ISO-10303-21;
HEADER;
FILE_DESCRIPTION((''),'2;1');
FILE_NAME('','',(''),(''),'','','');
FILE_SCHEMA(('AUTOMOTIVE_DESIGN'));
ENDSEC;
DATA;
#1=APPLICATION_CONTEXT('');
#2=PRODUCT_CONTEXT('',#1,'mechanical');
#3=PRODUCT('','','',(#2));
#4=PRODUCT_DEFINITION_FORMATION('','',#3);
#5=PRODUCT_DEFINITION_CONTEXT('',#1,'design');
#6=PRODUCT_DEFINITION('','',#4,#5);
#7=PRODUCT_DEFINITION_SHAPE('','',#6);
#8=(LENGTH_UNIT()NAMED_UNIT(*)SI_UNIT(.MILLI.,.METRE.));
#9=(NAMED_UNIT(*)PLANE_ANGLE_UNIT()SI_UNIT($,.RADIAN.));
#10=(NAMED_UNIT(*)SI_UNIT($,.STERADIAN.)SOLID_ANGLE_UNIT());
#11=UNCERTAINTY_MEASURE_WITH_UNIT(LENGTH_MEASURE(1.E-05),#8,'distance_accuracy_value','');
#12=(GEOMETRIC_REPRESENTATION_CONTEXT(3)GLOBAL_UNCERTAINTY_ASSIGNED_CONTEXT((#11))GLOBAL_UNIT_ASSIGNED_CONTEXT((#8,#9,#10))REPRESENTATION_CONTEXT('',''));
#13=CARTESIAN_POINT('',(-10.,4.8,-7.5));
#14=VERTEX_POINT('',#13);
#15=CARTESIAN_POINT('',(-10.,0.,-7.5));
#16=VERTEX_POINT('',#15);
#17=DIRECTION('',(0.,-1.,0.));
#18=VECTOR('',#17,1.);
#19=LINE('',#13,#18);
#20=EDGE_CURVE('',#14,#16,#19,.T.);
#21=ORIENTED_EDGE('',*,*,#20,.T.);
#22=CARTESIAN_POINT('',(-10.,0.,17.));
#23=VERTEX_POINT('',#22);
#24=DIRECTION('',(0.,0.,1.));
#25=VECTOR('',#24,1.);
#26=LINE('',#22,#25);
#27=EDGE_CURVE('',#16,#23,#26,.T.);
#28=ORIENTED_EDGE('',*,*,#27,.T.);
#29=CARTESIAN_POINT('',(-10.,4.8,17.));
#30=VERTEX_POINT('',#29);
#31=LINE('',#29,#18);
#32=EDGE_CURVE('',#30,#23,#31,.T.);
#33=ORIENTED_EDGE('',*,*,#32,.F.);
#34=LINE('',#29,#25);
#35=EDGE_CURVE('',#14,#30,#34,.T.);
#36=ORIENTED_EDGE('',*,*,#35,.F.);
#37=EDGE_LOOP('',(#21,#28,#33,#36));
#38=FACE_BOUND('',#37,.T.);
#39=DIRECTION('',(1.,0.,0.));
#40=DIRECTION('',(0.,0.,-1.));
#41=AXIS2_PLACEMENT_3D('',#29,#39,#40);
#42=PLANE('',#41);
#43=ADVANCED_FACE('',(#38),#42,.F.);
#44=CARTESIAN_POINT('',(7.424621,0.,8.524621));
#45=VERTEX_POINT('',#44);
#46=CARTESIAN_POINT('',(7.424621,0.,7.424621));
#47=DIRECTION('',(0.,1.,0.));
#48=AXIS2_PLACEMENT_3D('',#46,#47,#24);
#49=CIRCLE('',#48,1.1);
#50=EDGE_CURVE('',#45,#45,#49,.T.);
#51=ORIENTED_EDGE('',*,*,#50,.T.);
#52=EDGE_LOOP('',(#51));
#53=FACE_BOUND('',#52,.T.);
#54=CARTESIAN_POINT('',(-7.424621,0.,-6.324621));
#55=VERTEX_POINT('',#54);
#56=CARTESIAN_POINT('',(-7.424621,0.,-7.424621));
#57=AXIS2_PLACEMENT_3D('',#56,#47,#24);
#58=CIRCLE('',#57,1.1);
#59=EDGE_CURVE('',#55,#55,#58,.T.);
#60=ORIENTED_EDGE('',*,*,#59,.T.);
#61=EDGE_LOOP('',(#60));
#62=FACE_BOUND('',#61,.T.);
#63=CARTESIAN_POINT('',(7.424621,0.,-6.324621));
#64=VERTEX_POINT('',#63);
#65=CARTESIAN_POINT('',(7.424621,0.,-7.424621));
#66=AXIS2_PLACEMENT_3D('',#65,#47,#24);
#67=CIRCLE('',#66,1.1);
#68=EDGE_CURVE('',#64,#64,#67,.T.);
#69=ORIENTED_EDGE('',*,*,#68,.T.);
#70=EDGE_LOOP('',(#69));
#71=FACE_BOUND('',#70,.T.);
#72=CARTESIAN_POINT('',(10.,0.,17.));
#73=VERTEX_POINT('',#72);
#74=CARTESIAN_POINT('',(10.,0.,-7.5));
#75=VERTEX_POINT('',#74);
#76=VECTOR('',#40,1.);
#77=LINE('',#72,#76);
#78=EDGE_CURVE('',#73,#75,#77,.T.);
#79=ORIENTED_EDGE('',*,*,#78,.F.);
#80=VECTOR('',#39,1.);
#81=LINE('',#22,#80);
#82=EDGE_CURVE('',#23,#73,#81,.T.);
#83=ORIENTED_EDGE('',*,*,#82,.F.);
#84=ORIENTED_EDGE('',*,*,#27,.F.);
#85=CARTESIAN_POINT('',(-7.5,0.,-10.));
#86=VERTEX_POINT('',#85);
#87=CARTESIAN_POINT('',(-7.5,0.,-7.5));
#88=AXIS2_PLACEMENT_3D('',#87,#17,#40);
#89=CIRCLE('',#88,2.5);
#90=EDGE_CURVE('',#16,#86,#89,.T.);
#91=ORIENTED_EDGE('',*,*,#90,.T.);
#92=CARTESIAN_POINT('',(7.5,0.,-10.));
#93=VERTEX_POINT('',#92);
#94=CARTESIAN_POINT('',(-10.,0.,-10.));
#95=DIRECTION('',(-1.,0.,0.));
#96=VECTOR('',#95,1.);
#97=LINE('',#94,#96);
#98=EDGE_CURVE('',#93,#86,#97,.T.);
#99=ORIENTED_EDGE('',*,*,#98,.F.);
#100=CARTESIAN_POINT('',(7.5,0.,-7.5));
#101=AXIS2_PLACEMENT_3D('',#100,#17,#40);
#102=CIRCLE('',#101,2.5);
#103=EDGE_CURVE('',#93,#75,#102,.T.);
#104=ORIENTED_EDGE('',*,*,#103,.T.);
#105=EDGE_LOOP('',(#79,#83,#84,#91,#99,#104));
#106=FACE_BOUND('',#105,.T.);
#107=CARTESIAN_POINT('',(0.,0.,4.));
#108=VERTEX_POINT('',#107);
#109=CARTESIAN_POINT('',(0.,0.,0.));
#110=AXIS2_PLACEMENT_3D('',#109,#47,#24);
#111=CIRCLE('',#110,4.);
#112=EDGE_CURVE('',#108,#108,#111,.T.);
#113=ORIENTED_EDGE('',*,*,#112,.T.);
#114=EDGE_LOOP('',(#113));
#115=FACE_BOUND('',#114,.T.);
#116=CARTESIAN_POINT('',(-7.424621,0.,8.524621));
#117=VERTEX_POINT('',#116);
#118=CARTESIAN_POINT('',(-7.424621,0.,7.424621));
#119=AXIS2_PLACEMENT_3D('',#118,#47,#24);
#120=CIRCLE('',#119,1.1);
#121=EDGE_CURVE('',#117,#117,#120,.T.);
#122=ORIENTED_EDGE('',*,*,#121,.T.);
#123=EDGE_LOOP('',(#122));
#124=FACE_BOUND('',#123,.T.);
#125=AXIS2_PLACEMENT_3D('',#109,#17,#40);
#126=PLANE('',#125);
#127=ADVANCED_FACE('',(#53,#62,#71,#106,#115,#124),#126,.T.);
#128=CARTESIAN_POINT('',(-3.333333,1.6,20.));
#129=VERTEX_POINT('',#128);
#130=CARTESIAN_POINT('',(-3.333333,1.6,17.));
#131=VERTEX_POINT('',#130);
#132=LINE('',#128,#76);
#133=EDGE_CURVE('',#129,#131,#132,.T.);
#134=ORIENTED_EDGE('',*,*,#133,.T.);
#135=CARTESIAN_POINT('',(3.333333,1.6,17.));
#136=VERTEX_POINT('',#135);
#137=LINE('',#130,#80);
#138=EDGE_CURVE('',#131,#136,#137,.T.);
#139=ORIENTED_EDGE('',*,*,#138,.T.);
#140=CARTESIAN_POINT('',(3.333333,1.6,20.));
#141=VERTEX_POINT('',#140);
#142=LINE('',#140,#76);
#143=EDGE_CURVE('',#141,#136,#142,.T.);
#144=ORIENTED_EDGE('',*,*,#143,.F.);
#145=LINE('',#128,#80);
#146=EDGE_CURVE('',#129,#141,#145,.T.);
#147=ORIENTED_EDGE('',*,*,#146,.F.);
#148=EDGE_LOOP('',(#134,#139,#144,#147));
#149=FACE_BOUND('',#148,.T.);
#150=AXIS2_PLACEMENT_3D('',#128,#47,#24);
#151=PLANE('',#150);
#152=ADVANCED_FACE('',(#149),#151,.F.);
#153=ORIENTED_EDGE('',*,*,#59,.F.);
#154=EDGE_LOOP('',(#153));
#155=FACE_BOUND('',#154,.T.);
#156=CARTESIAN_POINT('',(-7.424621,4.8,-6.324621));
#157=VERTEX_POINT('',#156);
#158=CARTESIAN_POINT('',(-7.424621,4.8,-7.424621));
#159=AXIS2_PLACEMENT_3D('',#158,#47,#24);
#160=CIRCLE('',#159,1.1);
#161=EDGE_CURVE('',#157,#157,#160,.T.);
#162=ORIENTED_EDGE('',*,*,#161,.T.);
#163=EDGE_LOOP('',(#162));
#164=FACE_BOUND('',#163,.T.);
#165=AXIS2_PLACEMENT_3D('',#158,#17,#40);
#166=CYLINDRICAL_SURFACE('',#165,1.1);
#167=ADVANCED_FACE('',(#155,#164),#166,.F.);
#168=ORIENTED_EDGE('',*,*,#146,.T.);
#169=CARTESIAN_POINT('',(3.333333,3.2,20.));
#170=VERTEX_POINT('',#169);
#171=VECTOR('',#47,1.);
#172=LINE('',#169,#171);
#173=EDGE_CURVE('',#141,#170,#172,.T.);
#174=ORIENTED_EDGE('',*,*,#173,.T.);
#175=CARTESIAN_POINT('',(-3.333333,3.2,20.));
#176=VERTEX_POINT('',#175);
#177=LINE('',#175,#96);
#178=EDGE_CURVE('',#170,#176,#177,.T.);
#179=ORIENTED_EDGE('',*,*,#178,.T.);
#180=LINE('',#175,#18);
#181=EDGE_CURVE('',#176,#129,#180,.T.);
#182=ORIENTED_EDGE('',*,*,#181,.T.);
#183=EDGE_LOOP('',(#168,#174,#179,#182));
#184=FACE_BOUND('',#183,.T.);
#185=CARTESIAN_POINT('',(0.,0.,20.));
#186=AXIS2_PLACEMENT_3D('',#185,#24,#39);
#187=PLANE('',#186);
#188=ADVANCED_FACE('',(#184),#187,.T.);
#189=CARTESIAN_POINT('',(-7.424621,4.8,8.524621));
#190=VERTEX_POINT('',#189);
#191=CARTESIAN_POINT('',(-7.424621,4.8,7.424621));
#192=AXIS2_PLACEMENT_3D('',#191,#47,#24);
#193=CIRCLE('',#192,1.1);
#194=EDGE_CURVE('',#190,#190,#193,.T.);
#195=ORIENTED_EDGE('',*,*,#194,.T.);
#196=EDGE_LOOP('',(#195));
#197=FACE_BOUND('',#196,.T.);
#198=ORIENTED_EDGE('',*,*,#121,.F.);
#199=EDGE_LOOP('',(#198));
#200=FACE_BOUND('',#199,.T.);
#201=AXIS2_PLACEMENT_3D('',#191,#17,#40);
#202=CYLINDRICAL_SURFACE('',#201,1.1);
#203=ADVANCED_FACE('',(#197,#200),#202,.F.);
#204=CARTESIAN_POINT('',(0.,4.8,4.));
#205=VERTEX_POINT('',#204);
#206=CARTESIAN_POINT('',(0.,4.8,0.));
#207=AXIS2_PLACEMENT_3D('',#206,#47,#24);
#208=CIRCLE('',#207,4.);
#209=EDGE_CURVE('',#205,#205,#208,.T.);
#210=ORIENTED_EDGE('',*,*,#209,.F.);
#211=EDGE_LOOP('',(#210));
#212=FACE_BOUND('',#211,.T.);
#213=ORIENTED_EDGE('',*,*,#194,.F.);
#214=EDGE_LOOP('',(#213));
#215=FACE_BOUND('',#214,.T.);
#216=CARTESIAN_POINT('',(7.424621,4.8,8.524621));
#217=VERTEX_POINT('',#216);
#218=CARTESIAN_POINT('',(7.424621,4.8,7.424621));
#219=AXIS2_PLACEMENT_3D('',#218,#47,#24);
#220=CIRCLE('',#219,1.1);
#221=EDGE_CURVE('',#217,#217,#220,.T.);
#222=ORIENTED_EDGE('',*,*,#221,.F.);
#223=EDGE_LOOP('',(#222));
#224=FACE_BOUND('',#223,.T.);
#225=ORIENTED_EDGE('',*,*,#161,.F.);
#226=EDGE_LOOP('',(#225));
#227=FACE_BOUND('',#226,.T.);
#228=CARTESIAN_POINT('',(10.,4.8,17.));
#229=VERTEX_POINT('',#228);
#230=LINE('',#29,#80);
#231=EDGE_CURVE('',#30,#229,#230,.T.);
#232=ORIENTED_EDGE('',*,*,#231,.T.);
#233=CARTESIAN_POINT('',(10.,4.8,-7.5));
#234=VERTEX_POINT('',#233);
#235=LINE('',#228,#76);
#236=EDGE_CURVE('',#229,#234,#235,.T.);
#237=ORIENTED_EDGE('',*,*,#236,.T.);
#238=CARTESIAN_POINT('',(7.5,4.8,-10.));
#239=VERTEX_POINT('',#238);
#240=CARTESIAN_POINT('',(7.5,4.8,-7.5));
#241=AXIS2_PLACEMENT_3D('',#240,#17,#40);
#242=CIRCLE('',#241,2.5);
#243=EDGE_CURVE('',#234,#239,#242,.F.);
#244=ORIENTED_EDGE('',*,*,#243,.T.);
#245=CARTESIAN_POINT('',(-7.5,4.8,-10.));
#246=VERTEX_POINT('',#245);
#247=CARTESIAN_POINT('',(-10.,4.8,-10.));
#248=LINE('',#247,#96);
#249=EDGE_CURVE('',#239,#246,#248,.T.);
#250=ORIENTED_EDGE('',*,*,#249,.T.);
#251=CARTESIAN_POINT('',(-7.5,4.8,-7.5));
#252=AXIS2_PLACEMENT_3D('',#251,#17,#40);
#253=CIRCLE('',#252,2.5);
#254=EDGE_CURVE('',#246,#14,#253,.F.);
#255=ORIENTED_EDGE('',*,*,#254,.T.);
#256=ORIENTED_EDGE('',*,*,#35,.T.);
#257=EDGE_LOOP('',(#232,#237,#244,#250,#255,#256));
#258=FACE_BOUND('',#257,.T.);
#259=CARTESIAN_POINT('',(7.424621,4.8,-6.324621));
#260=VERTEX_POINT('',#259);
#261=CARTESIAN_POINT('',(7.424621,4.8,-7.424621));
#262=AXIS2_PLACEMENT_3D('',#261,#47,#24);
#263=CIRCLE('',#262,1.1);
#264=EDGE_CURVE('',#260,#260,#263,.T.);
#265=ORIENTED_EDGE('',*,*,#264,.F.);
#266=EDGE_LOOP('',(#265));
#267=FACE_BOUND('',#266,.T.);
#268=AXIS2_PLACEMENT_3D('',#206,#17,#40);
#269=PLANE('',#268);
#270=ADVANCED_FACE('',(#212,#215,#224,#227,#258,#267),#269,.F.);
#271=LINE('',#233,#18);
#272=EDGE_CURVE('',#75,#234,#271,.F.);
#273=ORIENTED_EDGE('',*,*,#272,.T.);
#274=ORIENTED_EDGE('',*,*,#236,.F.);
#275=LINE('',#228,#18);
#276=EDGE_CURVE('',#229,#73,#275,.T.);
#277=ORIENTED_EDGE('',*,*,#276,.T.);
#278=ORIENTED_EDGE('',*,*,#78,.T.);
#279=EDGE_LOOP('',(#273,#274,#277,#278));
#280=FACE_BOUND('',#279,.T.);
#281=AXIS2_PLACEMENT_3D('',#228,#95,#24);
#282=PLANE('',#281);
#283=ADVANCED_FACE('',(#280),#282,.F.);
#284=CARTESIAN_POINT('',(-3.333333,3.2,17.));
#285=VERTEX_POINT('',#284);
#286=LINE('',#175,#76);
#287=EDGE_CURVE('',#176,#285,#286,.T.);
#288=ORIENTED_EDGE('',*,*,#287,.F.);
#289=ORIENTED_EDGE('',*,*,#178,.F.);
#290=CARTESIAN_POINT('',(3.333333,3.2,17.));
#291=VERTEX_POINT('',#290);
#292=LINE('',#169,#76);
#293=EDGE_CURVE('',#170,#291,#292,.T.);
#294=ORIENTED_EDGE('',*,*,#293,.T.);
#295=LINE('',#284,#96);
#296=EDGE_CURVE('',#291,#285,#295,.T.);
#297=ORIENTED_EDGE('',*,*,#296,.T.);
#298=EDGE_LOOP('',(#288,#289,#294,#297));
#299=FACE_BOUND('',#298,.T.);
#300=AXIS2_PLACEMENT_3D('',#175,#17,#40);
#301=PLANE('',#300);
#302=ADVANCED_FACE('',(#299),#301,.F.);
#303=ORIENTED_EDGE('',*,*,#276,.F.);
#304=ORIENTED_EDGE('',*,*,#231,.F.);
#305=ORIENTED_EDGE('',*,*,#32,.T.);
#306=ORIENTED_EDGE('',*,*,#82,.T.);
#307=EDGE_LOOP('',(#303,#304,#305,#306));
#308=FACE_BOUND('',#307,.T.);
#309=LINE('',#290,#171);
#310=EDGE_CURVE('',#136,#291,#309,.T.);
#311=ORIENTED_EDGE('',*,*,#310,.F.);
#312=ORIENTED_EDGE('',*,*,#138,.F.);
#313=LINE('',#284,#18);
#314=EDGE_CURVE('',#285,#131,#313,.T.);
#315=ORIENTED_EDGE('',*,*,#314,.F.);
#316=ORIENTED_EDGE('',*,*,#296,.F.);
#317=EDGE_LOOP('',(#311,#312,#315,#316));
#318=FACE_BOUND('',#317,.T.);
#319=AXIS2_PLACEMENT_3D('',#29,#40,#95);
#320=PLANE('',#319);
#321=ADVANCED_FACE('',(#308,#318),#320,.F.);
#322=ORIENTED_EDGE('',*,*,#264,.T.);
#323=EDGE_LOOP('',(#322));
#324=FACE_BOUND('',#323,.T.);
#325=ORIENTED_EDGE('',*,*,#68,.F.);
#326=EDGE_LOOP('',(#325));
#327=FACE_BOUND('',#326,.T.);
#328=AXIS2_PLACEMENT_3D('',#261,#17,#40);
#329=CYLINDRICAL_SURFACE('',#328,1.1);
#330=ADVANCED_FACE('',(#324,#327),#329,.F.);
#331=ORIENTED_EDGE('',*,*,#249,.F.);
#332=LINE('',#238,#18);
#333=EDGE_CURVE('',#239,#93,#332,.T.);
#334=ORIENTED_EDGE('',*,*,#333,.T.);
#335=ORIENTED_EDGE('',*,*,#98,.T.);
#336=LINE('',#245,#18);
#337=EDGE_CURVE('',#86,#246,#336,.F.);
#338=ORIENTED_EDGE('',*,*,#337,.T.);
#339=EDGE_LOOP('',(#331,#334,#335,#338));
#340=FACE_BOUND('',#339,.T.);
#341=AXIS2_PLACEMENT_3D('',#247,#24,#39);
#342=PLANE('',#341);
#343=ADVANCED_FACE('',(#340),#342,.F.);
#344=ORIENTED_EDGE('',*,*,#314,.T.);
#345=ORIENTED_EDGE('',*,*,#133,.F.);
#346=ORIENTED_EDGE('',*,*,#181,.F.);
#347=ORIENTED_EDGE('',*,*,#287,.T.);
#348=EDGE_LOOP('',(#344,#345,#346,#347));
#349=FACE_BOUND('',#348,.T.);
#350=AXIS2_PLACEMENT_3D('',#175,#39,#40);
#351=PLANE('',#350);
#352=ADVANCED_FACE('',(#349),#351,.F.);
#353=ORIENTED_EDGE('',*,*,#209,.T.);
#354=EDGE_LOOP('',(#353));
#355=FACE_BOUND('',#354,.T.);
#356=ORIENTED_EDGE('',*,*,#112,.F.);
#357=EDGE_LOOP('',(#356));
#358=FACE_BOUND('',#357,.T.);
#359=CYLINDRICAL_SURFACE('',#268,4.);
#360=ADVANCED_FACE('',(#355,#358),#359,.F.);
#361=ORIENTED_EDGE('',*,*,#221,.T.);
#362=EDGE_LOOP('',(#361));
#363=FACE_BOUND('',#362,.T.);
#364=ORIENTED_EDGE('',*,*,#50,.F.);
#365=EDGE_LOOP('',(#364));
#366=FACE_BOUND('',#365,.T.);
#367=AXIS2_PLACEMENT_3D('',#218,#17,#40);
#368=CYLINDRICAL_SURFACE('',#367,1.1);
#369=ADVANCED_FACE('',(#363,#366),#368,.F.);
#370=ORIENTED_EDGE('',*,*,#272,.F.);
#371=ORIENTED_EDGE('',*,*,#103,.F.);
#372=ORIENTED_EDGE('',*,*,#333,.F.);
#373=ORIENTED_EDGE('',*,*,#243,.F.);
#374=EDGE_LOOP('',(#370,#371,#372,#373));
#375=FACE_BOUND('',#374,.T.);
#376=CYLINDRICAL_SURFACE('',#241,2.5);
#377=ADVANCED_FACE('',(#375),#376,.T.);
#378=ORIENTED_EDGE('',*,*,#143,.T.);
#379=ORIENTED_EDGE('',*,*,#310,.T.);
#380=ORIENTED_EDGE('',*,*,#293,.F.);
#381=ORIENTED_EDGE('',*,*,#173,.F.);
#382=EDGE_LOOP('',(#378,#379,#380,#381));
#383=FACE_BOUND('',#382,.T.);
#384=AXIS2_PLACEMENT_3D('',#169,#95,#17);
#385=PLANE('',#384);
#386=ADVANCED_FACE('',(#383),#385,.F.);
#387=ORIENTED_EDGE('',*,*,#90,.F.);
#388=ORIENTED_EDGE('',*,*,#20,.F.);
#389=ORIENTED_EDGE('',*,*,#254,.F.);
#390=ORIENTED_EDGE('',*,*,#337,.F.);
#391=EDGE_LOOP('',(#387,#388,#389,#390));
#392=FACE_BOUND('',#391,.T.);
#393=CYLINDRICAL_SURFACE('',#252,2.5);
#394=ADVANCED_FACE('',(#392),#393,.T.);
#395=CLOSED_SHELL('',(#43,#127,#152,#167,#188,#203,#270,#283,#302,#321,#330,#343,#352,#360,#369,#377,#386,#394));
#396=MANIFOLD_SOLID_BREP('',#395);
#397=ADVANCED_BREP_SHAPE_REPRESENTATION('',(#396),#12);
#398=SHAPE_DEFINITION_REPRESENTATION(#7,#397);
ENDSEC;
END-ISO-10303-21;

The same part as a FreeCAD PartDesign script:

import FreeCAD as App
import Part
import Sketcher
from FreeCAD import Vector
Q = App.Units.Quantity


def edges_at(feature, points):
    """Names of the edges that pass closest to the given points."""
    edges = feature.Shape.Edges
    near = lambda p: min(range(len(edges)), key=lambda i: edges[i].distToShape(Part.Vertex(*p))[0])
    return sorted({f"Edge{near(p) + 1}" for p in points})


def add_polygon(sketch, points):
    """Adds a closed chain of lines whose ends are joined by coincident constraints."""
    first, n = sketch.GeometryCount, len(points)
    for a, b in zip(points, points[1:] + points[:1]):
        sketch.addGeometry(Part.LineSegment(App.Vector(*a, 0), App.Vector(*b, 0)), False)
    for i in range(n):
        sketch.addConstraint(Sketcher.Constraint("Coincident", first + i, 2, first + (i + 1) % n, 1))

doc = App.newDocument("Part")
params = doc.addObject("Spreadsheet::Sheet", "Params")
for row, (alias, value) in enumerate([
    ("sketch1_diameter", "8 mm"),
    ("sketch1_diameter2", "2.2 mm"),
    ("sketch1_width", "20 mm"),
    ("sketch1_height", "27 mm"),
    ("pad1_length", "4.8 mm"),
    ("fillet_radius", "2.5 mm"),
    ("fillet2_radius", "2.5 mm"),
    ("sketch2_height", "1.6 mm"),
    ("pad2_length", "3 mm"),
], start=1):
    params.set(f"A{row}", alias)
    params.set(f"B{row}", "=" + value)
    params.setAlias(f"B{row}", alias)

body = doc.addObject("PartDesign::Body", "Body")

# Sketch on XZ plane
sketch1 = doc.addObject("Sketcher::SketchObject", "Sketch")
body.addObject(sketch1)
sketch1.AttachmentSupport = (doc.XZ_Plane, [""])
sketch1.MapMode = "FlatFace"
add_polygon(sketch1, [(-10, -10), (-10, 17), (10, 17), (10, -10)])  # lines 0-3
sketch1.addGeometry(Part.Circle(Vector(-7.4, 7.4, 0), Vector(0, 0, 1), 1.1), False)  # 4
sketch1.addGeometry(Part.Circle(Vector(7.4, 7.4, 0), Vector(0, 0, 1), 1.1), False)  # 5
sketch1.addGeometry(Part.Circle(Vector(-7.4, -7.4, 0), Vector(0, 0, 1), 1.1), False)  # 6
sketch1.addGeometry(Part.Circle(Vector(0, 0, 0), Vector(0, 0, 1), 4), False)  # 7
sketch1.addGeometry(Part.Circle(Vector(7.4, -7.4, 0), Vector(0, 0, 1), 1.1), False)  # 8
sketch1.addConstraint(Sketcher.Constraint("Vertical", 0))
sketch1.addConstraint(Sketcher.Constraint("Horizontal", 1))
sketch1.addConstraint(Sketcher.Constraint("Vertical", 2))
sketch1.addConstraint(Sketcher.Constraint("Horizontal", 3))
sketch1.addConstraint(Sketcher.Constraint("Coincident", 7, 3, -1, 1))
sketch1.addConstraint(Sketcher.Constraint("Equal", 4, 5))
sketch1.addConstraint(Sketcher.Constraint("Equal", 5, 6))
sketch1.addConstraint(Sketcher.Constraint("Equal", 6, 8))
sketch1.addConstraint(Sketcher.Constraint("Symmetric", 5, 3, 6, 3, -1, 1))
sketch1.addConstraint(Sketcher.Constraint("Symmetric", 4, 3, 8, 3, -1, 1))
sketch1.addConstraint(Sketcher.Constraint("Symmetric", 4, 3, 5, 3, -2))
sketch1.addConstraint(Sketcher.Constraint("Diameter", 7, Q("8 mm")))
sketch1.addConstraint(Sketcher.Constraint("Diameter", 4, Q("2.2 mm")))
sketch1.addConstraint(Sketcher.Constraint("DistanceX", 1, 1, 1, 2, Q("20 mm")))
sketch1.addConstraint(Sketcher.Constraint("DistanceY", 0, 1, 0, 2, Q("27 mm")))
sketch1.addConstraint(Sketcher.Constraint("DistanceX", 0, 2, -1, 1, Q("10 mm")))
sketch1.addConstraint(Sketcher.Constraint("DistanceY", -1, 1, 0, 2, Q("17 mm")))
sketch1.addConstraint(Sketcher.Constraint("DistanceX", 4, 3, -1, 1, Q("7.424621 mm")))
sketch1.addConstraint(Sketcher.Constraint("DistanceY", -1, 1, 4, 3, Q("7.424621 mm")))
sketch1.setExpression("Constraints[15]", "Params.sketch1_diameter")
sketch1.setExpression("Constraints[16]", "Params.sketch1_diameter2")
sketch1.setExpression("Constraints[17]", "Params.sketch1_width")
sketch1.setExpression("Constraints[18]", "Params.sketch1_height")
pad1 = doc.addObject("PartDesign::Pad", "Pad")
body.addObject(pad1)
pad1.Profile = sketch1
pad1.setExpression("Length", "Params.pad1_length")
pad1.Reversed = True
doc.recompute()

fillet = doc.addObject("PartDesign::Fillet", "Fillet")
body.addObject(fillet)
fillet.Base = (pad1, edges_at(pad1, [(-10, 2.4, -10)]))
fillet.setExpression("Radius", "Params.fillet_radius")
doc.recompute()

fillet2 = doc.addObject("PartDesign::Fillet", "Fillet001")
body.addObject(fillet2)
fillet2.Base = (fillet, edges_at(fillet, [(10, 2.4, -10)]))
fillet2.setExpression("Radius", "Params.fillet2_radius")

# Sketch on XY plane
sketch2 = doc.addObject("Sketcher::SketchObject", "Sketch001")
body.addObject(sketch2)
sketch2.AttachmentSupport = (doc.XY_Plane, [""])
sketch2.MapMode = "FlatFace"
sketch2.AttachmentOffset = App.Placement(Vector(0, 0, 17), App.Rotation())
add_polygon(sketch2, [(-3.3, 3.2), (-3.3, 1.6), (3.3, 1.6), (3.3, 3.2)])  # lines 0-3
sketch2.addConstraint(Sketcher.Constraint("Vertical", 0))
sketch2.addConstraint(Sketcher.Constraint("Horizontal", 1))
sketch2.addConstraint(Sketcher.Constraint("Vertical", 2))
sketch2.addConstraint(Sketcher.Constraint("Horizontal", 3))
sketch2.addConstraint(Sketcher.Constraint("DistanceY", 0, 2, 0, 1, Q("1.6 mm")))
sketch2.addConstraint(Sketcher.Constraint("DistanceY", -1, 1, 0, 2, Q("1.6 mm")))
sketch2.addConstraint(Sketcher.Constraint("DistanceX", 1, 1, 1, 2, Q("6.666667 mm")))
sketch2.addConstraint(Sketcher.Constraint("DistanceX", 0, 2, -1, 1, Q("3.333333 mm")))
sketch2.setExpression("Constraints[8]", "Params.sketch2_height")
pad2 = doc.addObject("PartDesign::Pad", "Pad001")
body.addObject(pad2)
pad2.Profile = sketch2
pad2.setExpression("Length", "Params.pad2_length")

doc.recompute()
